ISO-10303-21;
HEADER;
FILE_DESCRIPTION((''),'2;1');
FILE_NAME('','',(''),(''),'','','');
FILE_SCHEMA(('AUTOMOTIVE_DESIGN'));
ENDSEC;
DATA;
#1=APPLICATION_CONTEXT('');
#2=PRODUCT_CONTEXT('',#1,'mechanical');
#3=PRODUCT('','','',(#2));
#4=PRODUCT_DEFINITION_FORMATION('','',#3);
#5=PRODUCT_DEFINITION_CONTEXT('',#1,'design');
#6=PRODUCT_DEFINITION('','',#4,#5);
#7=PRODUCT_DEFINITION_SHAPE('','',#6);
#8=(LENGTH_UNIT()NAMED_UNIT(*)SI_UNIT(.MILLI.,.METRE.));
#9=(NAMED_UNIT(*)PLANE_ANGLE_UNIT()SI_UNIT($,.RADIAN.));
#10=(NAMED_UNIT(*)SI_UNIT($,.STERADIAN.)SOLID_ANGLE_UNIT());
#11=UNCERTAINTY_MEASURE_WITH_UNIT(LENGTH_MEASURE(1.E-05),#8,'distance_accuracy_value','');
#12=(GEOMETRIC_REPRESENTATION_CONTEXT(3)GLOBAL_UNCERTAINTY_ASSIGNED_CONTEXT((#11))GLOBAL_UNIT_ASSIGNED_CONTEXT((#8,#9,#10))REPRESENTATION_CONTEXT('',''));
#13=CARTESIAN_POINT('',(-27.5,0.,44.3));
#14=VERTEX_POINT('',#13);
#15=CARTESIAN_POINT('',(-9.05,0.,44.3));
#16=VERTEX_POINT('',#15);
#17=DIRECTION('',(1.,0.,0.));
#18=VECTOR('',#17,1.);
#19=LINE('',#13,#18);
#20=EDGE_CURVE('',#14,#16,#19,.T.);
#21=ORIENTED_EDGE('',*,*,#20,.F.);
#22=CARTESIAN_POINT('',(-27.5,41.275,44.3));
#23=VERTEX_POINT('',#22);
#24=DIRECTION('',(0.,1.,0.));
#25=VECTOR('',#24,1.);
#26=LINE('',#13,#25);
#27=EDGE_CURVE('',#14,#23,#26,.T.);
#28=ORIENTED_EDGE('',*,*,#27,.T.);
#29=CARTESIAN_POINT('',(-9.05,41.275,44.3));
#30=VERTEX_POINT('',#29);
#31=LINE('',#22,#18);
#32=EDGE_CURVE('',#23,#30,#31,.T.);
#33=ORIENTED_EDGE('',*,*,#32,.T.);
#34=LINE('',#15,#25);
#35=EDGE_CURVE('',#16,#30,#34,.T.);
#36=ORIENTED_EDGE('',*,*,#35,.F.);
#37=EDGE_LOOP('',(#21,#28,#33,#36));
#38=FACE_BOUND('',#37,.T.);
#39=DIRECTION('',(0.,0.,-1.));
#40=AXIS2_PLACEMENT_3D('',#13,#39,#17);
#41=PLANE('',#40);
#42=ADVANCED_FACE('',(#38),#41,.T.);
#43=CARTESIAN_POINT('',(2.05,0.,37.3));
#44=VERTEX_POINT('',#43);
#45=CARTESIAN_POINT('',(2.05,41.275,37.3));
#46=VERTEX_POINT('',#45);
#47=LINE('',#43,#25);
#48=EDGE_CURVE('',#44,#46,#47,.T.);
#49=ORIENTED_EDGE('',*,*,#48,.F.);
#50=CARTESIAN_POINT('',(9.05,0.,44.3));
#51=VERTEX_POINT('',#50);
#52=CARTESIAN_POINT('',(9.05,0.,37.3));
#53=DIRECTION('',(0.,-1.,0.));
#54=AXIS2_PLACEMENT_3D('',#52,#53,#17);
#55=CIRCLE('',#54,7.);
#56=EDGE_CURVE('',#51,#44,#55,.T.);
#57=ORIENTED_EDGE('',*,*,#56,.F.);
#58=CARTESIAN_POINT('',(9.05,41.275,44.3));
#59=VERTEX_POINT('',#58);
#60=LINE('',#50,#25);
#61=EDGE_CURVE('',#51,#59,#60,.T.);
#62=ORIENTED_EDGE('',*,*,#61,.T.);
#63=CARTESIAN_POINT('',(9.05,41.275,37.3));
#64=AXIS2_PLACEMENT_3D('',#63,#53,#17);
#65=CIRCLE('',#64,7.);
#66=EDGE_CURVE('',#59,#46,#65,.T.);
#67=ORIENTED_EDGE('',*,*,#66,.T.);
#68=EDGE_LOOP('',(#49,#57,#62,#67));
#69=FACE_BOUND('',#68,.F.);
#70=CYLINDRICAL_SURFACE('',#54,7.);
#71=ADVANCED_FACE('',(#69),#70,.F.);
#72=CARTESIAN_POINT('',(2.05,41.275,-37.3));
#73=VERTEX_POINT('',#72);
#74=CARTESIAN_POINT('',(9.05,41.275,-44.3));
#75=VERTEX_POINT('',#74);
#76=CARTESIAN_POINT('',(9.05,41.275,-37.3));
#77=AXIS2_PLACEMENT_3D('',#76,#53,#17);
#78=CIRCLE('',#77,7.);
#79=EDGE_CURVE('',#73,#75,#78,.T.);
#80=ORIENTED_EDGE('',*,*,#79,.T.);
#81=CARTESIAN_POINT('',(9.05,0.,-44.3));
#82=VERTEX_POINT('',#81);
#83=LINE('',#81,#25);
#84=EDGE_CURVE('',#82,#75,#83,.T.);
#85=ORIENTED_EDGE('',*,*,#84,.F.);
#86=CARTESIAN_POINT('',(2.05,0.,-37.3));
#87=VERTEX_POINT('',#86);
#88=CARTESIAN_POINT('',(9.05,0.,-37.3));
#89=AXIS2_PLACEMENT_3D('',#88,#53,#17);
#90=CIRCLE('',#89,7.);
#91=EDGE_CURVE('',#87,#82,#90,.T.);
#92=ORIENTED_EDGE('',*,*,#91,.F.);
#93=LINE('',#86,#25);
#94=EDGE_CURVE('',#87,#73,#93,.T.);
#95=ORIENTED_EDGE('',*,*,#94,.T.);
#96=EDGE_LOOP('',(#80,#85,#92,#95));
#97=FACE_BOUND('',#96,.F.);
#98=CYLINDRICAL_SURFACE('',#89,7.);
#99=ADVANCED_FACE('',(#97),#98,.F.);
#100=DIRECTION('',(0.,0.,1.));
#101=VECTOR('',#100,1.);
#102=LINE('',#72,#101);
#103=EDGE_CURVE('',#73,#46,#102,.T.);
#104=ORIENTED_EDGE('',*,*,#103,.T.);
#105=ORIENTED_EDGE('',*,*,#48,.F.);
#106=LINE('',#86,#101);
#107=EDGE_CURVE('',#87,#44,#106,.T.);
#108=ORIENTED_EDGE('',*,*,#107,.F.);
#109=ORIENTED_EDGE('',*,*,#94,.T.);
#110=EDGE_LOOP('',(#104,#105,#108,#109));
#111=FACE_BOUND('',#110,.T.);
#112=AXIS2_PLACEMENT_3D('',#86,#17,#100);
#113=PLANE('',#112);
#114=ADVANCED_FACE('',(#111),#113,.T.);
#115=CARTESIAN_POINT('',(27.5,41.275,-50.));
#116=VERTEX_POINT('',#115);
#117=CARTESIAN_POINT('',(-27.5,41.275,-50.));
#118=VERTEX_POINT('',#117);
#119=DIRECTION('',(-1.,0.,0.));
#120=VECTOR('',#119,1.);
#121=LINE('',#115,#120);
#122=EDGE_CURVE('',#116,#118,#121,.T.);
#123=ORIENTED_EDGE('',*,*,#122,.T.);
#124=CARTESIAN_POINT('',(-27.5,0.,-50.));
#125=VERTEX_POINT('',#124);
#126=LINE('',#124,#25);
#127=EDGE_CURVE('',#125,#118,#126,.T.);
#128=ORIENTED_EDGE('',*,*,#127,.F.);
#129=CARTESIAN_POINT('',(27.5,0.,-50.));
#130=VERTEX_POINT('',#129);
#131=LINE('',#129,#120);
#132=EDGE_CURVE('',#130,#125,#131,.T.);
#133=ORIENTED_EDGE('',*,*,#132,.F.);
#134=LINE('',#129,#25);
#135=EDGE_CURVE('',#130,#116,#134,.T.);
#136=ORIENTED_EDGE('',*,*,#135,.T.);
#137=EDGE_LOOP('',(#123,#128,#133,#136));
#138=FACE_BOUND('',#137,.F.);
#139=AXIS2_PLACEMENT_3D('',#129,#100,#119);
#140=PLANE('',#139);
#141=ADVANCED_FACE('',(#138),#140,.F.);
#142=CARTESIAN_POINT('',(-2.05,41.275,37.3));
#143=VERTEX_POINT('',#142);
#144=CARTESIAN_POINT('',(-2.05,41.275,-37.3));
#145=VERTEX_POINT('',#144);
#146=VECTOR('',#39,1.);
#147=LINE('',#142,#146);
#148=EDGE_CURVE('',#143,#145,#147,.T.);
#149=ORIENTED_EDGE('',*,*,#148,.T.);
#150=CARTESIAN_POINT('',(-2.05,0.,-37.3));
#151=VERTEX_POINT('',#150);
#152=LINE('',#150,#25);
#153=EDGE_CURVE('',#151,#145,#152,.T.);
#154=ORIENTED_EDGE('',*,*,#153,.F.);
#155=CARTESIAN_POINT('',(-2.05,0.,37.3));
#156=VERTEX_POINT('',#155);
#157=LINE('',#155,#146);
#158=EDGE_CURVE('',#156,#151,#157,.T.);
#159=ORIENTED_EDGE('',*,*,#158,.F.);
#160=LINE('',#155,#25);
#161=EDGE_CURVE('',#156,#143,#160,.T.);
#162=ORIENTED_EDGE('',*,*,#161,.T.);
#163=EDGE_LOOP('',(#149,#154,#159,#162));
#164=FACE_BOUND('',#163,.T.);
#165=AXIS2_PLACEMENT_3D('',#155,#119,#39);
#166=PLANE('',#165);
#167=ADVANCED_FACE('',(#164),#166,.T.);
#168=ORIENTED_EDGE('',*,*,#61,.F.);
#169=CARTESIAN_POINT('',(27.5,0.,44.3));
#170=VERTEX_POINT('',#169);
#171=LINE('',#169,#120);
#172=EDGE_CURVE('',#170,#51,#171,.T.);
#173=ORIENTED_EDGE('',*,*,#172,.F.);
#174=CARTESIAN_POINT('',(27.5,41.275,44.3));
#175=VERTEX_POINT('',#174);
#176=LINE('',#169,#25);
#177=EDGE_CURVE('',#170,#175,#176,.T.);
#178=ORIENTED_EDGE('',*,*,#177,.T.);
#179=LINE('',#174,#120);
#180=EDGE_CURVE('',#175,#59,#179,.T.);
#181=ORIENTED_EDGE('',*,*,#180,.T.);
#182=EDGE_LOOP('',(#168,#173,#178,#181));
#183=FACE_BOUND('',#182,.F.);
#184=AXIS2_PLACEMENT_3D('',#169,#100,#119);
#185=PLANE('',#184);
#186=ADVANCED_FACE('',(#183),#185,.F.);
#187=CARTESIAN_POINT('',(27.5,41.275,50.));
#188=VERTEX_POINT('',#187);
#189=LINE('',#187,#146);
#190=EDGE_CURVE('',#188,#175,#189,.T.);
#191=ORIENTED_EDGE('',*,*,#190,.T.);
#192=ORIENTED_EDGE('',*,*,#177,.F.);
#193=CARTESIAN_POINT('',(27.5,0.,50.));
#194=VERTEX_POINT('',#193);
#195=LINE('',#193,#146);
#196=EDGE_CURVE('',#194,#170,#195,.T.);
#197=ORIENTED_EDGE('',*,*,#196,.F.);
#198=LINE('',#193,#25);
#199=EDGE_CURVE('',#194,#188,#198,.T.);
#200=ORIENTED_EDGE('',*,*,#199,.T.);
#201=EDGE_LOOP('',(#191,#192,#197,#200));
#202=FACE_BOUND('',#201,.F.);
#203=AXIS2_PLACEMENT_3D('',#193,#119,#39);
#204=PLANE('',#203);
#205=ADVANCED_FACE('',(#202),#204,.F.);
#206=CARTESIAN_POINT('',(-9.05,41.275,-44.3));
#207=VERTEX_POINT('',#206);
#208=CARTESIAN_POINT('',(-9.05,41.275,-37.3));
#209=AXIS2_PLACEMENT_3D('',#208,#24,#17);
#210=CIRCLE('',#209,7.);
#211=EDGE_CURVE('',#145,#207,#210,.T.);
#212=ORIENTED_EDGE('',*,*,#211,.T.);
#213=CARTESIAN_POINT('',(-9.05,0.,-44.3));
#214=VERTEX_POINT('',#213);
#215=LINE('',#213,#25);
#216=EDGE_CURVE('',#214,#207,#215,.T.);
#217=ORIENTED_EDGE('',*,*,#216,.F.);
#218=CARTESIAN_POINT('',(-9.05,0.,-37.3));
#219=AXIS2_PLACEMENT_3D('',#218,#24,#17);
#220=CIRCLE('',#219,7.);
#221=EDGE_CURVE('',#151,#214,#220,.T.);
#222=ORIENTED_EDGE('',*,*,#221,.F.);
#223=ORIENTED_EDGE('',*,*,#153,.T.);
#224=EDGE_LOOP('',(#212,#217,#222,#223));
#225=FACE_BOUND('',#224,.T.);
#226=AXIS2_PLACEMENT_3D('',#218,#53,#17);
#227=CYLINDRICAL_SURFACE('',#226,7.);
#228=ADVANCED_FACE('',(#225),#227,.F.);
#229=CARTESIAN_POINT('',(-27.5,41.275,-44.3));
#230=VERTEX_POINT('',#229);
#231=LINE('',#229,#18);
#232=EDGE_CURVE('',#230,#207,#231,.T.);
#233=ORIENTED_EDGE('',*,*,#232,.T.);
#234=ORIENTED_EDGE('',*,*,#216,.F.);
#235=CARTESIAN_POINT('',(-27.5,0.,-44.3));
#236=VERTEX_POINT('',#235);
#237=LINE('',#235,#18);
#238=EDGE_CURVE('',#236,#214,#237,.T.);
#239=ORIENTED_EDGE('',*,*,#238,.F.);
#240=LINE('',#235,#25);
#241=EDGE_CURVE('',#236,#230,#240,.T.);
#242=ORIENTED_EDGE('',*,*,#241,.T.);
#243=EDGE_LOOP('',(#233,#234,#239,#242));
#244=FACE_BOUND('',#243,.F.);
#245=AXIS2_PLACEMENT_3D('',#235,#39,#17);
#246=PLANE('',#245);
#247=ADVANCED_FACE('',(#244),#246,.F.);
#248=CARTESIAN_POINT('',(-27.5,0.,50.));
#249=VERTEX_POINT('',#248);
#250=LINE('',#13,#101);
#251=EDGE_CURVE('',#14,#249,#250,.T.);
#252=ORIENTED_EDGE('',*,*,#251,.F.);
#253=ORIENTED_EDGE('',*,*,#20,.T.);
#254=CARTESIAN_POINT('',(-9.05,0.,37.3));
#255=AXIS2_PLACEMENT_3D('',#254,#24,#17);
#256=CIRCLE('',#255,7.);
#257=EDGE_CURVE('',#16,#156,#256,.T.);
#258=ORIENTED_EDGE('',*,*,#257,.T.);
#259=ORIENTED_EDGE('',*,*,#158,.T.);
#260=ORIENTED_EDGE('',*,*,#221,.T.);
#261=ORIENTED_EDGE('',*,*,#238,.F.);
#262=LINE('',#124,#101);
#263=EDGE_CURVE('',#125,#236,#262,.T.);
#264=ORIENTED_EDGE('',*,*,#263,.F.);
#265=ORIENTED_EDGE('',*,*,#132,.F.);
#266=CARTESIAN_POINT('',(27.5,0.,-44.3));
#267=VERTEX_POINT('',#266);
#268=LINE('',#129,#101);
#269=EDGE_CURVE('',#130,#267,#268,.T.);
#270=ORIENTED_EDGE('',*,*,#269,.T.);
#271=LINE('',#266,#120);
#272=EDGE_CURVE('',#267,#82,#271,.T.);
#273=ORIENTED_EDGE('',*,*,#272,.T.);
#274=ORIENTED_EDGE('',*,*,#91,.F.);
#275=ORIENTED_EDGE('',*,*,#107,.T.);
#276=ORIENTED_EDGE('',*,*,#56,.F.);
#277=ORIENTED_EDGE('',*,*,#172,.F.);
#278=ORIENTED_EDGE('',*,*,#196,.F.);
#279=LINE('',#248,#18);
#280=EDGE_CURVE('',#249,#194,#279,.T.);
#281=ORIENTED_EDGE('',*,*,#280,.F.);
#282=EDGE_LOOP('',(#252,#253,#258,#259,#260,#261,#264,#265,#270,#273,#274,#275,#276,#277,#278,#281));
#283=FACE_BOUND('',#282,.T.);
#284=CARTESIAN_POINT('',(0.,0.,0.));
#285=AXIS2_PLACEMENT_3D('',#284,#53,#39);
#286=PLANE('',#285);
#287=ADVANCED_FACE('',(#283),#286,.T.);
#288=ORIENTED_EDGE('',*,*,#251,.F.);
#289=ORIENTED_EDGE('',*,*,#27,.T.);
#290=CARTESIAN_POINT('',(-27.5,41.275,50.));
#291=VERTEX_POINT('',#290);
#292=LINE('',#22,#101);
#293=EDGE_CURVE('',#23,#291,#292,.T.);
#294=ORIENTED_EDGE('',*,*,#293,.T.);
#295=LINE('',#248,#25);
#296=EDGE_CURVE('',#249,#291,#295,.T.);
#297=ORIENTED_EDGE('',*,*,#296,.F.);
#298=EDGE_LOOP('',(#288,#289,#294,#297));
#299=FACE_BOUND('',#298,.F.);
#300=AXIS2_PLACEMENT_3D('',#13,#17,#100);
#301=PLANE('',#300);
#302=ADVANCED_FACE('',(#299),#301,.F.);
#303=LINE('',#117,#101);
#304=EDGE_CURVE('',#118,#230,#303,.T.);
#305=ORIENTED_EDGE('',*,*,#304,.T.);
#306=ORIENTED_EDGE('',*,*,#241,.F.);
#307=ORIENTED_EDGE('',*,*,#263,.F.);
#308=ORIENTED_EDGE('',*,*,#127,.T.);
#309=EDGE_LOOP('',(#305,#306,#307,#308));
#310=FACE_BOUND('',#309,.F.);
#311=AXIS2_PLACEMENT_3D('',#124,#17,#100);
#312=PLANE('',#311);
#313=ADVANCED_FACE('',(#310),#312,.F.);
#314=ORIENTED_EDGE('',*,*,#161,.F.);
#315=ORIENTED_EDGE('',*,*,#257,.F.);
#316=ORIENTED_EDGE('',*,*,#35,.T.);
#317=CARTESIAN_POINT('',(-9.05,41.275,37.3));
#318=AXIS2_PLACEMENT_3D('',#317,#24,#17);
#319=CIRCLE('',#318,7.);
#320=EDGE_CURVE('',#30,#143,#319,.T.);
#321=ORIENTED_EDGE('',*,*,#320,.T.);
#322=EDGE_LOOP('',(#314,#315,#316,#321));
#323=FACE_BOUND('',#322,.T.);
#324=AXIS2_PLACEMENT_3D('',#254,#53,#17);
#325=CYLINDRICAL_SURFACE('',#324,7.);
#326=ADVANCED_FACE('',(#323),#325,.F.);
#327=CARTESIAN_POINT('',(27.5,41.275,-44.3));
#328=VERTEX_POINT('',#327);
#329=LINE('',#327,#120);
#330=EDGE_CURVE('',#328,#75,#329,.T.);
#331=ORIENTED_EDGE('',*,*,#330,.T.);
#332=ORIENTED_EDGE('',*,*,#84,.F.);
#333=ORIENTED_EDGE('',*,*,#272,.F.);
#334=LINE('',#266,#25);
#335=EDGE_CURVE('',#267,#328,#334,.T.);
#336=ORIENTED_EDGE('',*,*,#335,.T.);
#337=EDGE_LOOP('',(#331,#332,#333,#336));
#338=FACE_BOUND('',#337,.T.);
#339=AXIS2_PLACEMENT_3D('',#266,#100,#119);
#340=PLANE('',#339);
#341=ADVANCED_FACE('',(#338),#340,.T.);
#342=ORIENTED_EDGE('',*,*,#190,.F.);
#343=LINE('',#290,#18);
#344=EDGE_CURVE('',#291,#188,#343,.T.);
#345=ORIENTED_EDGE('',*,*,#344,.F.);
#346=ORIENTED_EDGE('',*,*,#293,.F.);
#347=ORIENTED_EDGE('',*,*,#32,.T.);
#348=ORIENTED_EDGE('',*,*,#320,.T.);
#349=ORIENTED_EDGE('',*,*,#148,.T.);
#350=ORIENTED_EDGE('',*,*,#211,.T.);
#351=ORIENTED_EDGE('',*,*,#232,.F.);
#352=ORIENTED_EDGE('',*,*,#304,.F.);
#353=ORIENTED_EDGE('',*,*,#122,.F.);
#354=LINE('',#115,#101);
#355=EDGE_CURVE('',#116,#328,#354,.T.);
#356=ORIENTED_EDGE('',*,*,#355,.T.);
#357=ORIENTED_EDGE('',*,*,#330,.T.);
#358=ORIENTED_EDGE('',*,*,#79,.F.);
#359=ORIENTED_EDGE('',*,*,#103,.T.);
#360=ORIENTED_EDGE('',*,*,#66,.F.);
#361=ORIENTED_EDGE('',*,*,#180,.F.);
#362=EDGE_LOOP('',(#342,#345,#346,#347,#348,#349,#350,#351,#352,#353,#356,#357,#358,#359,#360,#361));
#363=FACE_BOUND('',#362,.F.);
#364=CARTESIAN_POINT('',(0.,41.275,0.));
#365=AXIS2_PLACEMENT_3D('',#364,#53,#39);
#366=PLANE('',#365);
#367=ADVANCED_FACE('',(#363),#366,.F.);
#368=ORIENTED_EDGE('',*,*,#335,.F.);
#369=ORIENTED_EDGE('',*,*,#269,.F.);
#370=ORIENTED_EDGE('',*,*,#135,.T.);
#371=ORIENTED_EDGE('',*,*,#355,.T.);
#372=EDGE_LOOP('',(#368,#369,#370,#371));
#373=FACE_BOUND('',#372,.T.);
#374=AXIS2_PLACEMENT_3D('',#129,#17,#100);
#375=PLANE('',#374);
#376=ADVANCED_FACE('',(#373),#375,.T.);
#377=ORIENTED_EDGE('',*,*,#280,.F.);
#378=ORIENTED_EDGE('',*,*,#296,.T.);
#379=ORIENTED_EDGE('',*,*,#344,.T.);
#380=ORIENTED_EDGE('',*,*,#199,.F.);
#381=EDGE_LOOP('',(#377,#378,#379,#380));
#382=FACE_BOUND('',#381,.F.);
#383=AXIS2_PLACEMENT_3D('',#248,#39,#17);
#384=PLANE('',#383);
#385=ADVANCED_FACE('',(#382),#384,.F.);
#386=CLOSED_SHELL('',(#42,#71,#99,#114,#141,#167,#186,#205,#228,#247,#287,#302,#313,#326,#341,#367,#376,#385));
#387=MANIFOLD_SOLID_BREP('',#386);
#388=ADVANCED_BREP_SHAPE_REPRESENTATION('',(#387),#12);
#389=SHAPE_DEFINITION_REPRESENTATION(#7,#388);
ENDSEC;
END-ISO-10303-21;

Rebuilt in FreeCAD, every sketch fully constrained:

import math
import FreeCAD as App
import Part
import Sketcher
from FreeCAD import Vector

doc = App.newDocument("Part")
body = doc.addObject("PartDesign::Body", "Body")

# Sketch on XZ plane
sketch1 = body.newObject("Sketcher::SketchObject", "Sketch")
sketch1.AttachmentSupport = (doc.getObject("XZ_Plane"), [""])
sketch1.MapMode = "FlatFace"
sketch1.addGeometry([
    Part.ArcOfCircle(Part.Circle(Vector(-9, 37, 0), Vector(0, 0, 1), 7), math.radians(0), math.radians(90)),  # 0
    Part.LineSegment(Vector(-2, 37, 0), Vector(-2, -37, 0)),  # 1
    Part.ArcOfCircle(Part.Circle(Vector(-9, -37, 0), Vector(0, 0, 1), 7), math.radians(-90), math.radians(0)),  # 2
    Part.LineSegment(Vector(-9, -44, 0), Vector(-28, -44, 0)),  # 3
    Part.LineSegment(Vector(-28, -44, 0), Vector(-28, -50, 0)),  # 4
    Part.LineSegment(Vector(-28, -50, 0), Vector(28, -50, 0)),  # 5
    Part.LineSegment(Vector(28, -50, 0), Vector(28, -44, 0)),  # 6
    Part.LineSegment(Vector(28, -44, 0), Vector(9, -44, 0)),  # 7
    Part.ArcOfCircle(Part.Circle(Vector(9, -37, 0), Vector(0, 0, 1), 7), math.radians(180), math.radians(270)),  # 8
    Part.LineSegment(Vector(2, -37, 0), Vector(2, 37, 0)),  # 9
    Part.ArcOfCircle(Part.Circle(Vector(9, 37, 0), Vector(0, 0, 1), 7), math.radians(90), math.radians(180)),  # 10
    Part.LineSegment(Vector(9, 44, 0), Vector(28, 44, 0)),  # 11
    Part.LineSegment(Vector(28, 44, 0), Vector(28, 50, 0)),  # 12
    Part.LineSegment(Vector(28, 50, 0), Vector(-28, 50, 0)),  # 13
    Part.LineSegment(Vector(-28, 50, 0), Vector(-28, 44, 0)),  # 14
    Part.LineSegment(Vector(-28, 44, 0), Vector(-9, 44, 0)),  # 15
], False)
sketch1.addConstraint([
    Sketcher.Constraint("Tangent", 0, 1, 1, 1),
    Sketcher.Constraint("Tangent", 1, 2, 2, 2),
    Sketcher.Constraint("Tangent", 2, 1, 3, 1),
    Sketcher.Constraint("Coincident", 3, 2, 4, 1),
    Sketcher.Constraint("Coincident", 4, 2, 5, 1),
    Sketcher.Constraint("Coincident", 5, 2, 6, 1),
    Sketcher.Constraint("Coincident", 6, 2, 7, 1),
    Sketcher.Constraint("Tangent", 7, 2, 8, 2),
    Sketcher.Constraint("Tangent", 8, 1, 9, 1),
    Sketcher.Constraint("Tangent", 9, 2, 10, 2),
    Sketcher.Constraint("Tangent", 10, 1, 11, 1),
    Sketcher.Constraint("Coincident", 11, 2, 12, 1),
    Sketcher.Constraint("Coincident", 12, 2, 13, 1),
    Sketcher.Constraint("Coincident", 13, 2, 14, 1),
    Sketcher.Constraint("Coincident", 14, 2, 15, 1),
    Sketcher.Constraint("Tangent", 15, 2, 0, 2),
    Sketcher.Constraint("Vertical", 1),
    Sketcher.Constraint("Horizontal", 3),
    Sketcher.Constraint("Vertical", 4),
    Sketcher.Constraint("Horizontal", 5),
    Sketcher.Constraint("Vertical", 6),
    Sketcher.Constraint("Horizontal", 7),
    Sketcher.Constraint("Vertical", 9),
    Sketcher.Constraint("Horizontal", 11),
    Sketcher.Constraint("Vertical", 12),
    Sketcher.Constraint("Horizontal", 13),
    Sketcher.Constraint("Vertical", 14),
    Sketcher.Constraint("Horizontal", 15),
    Sketcher.Constraint("Equal", 0, 2),
    Sketcher.Constraint("Equal", 2, 8),
    Sketcher.Constraint("Equal", 8, 10),
    Sketcher.Constraint("Symmetric", 0, 3, 8, 3, -1, 1),
    Sketcher.Constraint("Symmetric", 3, 2, 11, 2, -1, 1),
    Sketcher.Constraint("Symmetric", 5, 2, 13, 2, -1, 1),
    Sketcher.Constraint("Symmetric", 3, 2, 6, 2, -2),
    Sketcher.Constraint("Radius", 0, 7.0),
    Sketcher.Constraint("DistanceX", 3, 2, -1, 1, 27.5),
    Sketcher.Constraint("DistanceY", 1, 2, 1, 1, 74.6),
    Sketcher.Constraint("DistanceY", 4, 2, 4, 1, 5.7),
    Sketcher.Constraint("DistanceX", 3, 2, 3, 1, 18.45),
])
pad1 = body.newObject("PartDesign::Pad", "Pad")
pad1.Profile = sketch1
pad1.Length = 41.275
pad1.Reversed = True

doc.recompute()
